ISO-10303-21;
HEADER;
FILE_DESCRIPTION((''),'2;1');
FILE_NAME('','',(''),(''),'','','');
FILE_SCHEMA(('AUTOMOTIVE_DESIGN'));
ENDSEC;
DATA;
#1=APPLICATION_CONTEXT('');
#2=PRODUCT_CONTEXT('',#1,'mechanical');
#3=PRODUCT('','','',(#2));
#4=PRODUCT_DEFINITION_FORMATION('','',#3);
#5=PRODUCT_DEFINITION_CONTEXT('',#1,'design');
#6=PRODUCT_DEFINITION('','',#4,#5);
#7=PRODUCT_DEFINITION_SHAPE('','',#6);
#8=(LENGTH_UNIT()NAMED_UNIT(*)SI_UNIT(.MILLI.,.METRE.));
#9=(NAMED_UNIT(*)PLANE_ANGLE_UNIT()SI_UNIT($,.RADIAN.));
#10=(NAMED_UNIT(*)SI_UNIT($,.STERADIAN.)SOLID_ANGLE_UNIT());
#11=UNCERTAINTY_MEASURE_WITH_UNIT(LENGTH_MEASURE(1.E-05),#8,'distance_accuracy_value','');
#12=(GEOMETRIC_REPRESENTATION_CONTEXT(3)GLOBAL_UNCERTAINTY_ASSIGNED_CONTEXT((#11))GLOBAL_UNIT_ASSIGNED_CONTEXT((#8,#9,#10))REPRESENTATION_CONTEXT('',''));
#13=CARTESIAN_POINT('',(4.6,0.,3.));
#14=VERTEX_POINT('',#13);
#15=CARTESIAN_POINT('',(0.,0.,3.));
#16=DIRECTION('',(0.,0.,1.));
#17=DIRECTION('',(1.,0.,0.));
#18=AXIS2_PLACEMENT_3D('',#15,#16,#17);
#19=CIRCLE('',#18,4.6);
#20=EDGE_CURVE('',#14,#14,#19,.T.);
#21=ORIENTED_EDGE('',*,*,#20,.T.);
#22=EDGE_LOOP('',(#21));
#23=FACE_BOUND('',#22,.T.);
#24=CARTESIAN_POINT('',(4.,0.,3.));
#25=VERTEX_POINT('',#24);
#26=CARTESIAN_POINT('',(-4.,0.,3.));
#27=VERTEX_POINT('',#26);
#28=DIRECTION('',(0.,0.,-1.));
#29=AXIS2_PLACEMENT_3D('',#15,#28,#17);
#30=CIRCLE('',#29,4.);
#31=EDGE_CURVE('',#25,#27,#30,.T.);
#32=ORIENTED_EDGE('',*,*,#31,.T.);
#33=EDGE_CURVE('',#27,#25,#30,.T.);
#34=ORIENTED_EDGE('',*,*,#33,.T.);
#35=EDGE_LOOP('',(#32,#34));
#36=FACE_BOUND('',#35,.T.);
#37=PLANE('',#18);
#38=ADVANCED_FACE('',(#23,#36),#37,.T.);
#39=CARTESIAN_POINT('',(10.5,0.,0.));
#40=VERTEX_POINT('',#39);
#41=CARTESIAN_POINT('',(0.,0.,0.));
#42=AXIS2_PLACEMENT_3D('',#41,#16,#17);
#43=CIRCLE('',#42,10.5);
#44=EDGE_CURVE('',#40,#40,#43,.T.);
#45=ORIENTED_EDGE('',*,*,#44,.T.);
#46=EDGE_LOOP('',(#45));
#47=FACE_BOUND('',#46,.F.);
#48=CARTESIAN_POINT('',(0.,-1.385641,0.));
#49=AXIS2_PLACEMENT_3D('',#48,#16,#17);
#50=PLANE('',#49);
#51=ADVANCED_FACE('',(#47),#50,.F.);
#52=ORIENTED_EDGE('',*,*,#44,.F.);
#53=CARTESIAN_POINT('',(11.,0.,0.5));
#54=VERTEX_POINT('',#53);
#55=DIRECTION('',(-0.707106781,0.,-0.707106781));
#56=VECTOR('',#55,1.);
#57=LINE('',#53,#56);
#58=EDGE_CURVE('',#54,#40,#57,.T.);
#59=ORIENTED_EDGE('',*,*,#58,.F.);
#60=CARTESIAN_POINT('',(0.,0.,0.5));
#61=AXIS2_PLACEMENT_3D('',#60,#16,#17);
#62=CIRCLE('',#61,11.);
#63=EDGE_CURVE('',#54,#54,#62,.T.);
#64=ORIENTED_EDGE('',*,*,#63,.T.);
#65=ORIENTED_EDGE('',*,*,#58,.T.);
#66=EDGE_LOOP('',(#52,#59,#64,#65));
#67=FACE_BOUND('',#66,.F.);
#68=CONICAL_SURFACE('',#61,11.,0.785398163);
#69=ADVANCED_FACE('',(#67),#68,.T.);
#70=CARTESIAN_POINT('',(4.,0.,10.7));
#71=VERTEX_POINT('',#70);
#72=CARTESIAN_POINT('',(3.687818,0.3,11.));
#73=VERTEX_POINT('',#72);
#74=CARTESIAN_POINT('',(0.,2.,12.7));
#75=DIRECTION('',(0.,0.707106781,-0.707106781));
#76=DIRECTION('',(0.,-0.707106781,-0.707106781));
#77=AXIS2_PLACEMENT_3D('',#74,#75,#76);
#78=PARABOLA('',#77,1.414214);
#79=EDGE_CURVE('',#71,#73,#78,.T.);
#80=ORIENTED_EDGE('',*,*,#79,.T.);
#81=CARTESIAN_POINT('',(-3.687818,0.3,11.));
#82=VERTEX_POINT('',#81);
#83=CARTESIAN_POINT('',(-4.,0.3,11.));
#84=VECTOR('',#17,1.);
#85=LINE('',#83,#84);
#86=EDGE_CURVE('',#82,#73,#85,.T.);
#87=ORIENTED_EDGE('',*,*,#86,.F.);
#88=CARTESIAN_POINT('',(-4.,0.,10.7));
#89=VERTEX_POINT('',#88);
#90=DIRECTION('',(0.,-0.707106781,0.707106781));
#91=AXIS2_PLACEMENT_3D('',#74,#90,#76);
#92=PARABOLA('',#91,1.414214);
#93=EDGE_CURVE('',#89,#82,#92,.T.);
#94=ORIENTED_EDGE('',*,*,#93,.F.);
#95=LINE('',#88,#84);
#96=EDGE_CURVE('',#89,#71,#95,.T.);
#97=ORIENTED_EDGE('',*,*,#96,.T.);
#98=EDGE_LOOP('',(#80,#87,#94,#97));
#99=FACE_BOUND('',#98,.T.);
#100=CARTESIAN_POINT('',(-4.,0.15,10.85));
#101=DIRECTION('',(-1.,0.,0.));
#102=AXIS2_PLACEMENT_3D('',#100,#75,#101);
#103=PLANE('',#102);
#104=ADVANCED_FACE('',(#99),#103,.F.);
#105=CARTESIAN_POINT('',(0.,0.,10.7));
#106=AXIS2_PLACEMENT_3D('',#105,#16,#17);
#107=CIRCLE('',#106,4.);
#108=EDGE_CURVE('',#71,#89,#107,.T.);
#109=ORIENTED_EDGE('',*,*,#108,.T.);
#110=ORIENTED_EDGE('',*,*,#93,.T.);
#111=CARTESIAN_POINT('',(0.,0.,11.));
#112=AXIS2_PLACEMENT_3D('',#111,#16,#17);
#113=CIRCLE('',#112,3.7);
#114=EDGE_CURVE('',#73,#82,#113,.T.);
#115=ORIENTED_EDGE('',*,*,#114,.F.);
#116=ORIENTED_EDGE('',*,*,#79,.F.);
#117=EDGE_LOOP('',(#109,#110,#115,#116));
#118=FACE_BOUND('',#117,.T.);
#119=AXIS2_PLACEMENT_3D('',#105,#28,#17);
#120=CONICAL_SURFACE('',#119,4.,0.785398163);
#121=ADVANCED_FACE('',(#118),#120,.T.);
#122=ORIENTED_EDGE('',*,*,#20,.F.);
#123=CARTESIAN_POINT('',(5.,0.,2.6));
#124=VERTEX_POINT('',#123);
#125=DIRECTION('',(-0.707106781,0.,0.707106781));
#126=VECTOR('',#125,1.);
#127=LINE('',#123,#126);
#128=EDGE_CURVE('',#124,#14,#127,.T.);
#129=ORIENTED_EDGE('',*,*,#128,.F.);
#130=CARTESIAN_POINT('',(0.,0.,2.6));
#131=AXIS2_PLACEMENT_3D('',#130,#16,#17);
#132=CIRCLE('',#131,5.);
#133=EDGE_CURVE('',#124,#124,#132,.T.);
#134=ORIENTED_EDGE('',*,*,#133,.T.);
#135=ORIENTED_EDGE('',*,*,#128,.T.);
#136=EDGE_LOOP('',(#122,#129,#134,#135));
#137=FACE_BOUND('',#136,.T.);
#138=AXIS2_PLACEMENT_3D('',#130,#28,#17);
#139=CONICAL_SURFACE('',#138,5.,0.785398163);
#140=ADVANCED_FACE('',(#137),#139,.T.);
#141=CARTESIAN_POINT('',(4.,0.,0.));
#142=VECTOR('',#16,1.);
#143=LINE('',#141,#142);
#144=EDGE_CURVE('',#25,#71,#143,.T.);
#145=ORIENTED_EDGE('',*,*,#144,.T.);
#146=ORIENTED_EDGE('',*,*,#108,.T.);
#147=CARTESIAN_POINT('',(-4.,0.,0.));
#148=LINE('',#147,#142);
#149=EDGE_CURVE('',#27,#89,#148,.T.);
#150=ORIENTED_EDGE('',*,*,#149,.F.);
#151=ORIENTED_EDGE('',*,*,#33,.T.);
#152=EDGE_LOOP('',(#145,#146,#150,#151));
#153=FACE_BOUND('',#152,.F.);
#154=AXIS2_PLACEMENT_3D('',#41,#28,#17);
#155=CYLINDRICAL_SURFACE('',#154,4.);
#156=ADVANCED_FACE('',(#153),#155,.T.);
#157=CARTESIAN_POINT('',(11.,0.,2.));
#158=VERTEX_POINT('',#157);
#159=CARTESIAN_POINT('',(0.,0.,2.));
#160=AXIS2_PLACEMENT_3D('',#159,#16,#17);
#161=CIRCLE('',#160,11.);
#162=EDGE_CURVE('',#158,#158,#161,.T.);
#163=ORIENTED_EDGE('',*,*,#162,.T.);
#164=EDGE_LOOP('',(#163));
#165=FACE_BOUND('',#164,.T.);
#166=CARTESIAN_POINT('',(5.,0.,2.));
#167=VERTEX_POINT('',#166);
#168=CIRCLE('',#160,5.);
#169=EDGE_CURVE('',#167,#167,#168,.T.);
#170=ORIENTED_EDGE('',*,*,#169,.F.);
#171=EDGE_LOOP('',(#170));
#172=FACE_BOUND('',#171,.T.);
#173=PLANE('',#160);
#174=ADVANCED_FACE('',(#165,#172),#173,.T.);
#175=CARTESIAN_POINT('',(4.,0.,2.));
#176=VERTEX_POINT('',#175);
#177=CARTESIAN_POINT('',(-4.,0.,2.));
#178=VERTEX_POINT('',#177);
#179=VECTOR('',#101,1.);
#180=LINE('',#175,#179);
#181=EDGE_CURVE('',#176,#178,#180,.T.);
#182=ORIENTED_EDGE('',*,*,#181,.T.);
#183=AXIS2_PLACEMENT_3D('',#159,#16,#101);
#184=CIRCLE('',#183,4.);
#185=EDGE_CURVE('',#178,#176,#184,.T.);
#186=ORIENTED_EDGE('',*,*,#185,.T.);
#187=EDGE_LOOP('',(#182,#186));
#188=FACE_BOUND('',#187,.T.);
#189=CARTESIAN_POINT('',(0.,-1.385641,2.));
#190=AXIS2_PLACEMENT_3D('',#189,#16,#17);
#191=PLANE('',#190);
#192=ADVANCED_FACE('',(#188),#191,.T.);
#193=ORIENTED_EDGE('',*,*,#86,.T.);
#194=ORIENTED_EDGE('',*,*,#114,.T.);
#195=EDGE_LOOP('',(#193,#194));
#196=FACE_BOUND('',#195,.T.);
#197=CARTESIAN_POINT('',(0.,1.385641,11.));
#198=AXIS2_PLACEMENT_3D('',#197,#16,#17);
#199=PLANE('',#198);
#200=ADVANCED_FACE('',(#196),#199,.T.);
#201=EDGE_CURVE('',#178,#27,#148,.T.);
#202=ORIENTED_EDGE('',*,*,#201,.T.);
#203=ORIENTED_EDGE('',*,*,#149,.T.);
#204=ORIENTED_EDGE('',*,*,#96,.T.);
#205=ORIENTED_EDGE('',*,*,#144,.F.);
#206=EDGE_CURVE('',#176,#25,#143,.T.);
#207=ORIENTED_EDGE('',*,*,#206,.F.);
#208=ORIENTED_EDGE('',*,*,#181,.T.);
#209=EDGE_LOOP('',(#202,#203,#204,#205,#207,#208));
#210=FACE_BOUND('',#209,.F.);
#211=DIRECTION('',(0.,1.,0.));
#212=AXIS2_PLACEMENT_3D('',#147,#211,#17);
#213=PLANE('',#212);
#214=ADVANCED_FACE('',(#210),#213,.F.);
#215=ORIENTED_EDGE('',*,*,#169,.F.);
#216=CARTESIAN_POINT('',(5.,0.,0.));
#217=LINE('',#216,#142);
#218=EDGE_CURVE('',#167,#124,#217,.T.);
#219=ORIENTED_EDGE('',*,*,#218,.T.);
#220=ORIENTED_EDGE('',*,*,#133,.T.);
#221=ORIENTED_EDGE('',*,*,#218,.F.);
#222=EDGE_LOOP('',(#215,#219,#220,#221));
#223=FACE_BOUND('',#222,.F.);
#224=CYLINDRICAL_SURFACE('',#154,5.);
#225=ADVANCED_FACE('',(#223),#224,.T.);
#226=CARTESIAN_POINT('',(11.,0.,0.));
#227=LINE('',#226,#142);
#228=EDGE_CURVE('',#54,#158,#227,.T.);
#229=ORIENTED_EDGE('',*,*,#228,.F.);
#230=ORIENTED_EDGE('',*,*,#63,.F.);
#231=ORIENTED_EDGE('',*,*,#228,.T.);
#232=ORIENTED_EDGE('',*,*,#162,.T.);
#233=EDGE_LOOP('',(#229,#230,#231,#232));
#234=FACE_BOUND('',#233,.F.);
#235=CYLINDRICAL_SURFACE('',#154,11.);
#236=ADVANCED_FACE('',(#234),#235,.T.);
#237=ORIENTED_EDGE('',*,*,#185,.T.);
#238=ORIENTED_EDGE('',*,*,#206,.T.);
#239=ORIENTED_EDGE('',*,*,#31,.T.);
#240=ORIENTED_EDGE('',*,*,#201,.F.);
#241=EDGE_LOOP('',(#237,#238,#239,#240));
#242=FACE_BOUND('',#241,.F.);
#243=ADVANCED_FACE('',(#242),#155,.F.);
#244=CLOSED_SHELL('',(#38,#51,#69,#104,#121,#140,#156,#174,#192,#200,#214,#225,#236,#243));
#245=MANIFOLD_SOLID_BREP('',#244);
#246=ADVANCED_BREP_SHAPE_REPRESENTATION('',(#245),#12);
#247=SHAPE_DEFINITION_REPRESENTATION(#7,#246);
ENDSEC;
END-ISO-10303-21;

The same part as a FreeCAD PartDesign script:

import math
import FreeCAD as App
import Part
import Sketcher
from FreeCAD import Vector


def edges_at(feature, points):
    """Names of the edges that pass closest to the given points."""
    edges = feature.Shape.Edges
    near = lambda p: min(range(len(edges)), key=lambda i: edges[i].distToShape(Part.Vertex(*p))[0])
    return sorted({f"Edge{near(p) + 1}" for p in points})

doc = App.newDocument("Part")
body = doc.addObject("PartDesign::Body", "Body")

# Sketch on XY plane
sketch1 = body.newObject("Sketcher::SketchObject", "Sketch")
sketch1.AttachmentSupport = (doc.getObject("XY_Plane"), [""])
sketch1.MapMode = "FlatFace"
sketch1.addGeometry([
    Part.LineSegment(Vector(-4, 0, 0), Vector(4, 0, 0)),
    Part.ArcOfCircle(Part.Circle(Vector(0, 0, 0), Vector(0, 0, 1), 4), math.radians(0), math.radians(180)),
], False)
sketch1.addConstraint([
    Sketcher.Constraint("Coincident", 0, 1, 1, 2),
    Sketcher.Constraint("Coincident", 1, 1, 0, 2),
    Sketcher.Constraint("Horizontal", 0),
    Sketcher.Constraint("Coincident", 1, 3, -1, 1),
    Sketcher.Constraint("PointOnObject", 0, 1, -1),
    Sketcher.Constraint("Radius", 1, 4.0),
])
pad1 = body.newObject("PartDesign::Pad", "Pad")
pad1.Profile = sketch1
pad1.Length = 11

# Sketch on XY plane
sketch2 = body.newObject("Sketcher::SketchObject", "Sketch001")
sketch2.AttachmentSupport = (doc.getObject("XY_Plane"), [""])
sketch2.MapMode = "FlatFace"
sketch2.addGeometry([
    Part.Circle(Vector(0, 0, 0), Vector(0, 0, 1), 5),
    Part.Circle(Vector(0, 0, 0), Vector(0, 0, 1), 4),
], False)
sketch2.addConstraint([
    Sketcher.Constraint("Coincident", 0, 3, -1, 1),
    Sketcher.Constraint("Coincident", 1, 3, -1, 1),
    Sketcher.Constraint("Diameter", 0, 10.0),
    Sketcher.Constraint("Diameter", 1, 8.0),
])
pad2 = body.newObject("PartDesign::Pad", "Pad001")
pad2.Profile = sketch2
pad2.Length = 3

# Sketch on XY plane
sketch3 = body.newObject("Sketcher::SketchObject", "Sketch002")
sketch3.AttachmentSupport = (doc.getObject("XY_Plane"), [""])
sketch3.MapMode = "FlatFace"
sketch3.addGeometry([
    Part.Circle(Vector(0, 0, 0), Vector(0, 0, 1), 11),
    Part.Circle(Vector(0, 0, 0), Vector(0, 0, 1), 5),
], False)
sketch3.addConstraint([
    Sketcher.Constraint("Coincident", 0, 3, -1, 1),
    Sketcher.Constraint("Coincident", 1, 3, -1, 1),
    Sketcher.Constraint("Diameter", 0, 22.0),
    Sketcher.Constraint("Diameter", 1, 10.0),
])
pad3 = body.newObject("PartDesign::Pad", "Pad002")
pad3.Profile = sketch3
pad3.Length = 2

# Sketch on XY plane
sketch4 = body.newObject("Sketcher::SketchObject", "Sketch003")
sketch4.AttachmentSupport = (doc.getObject("XY_Plane"), [""])
sketch4.MapMode = "FlatFace"
sketch4.addGeometry([
    Part.ArcOfCircle(Part.Circle(Vector(0, 0, 0), Vector(0, 0, 1), 4), math.radians(180), math.radians(360)),
    Part.LineSegment(Vector(4, 0, 0), Vector(-4, 0, 0)),
], False)
sketch4.addConstraint([
    Sketcher.Constraint("Coincident", 0, 1, 1, 2),
    Sketcher.Constraint("Coincident", 1, 1, 0, 2),
    Sketcher.Constraint("Horizontal", 1),
    Sketcher.Constraint("Coincident", 0, 3, -1, 1),
    Sketcher.Constraint("PointOnObject", 0, 1, -1),
    Sketcher.Constraint("Radius", 0, 4.0),
])
pad4 = body.newObject("PartDesign::Pad", "Pad003")
pad4.Profile = sketch4
pad4.Length = 2
doc.recompute()

chamfer = body.newObject("PartDesign::Chamfer", "Chamfer")
chamfer.Base = (pad4, edges_at(pad4, [(-5, 0, 3)]))
chamfer.Size = 0.4
doc.recompute()

chamfer2 = body.newObject("PartDesign::Chamfer", "Chamfer001")
chamfer2.Base = (chamfer, edges_at(chamfer, [(0, 4, 11), (0, 0, 11)]))
chamfer2.Size = 0.3
doc.recompute()

chamfer3 = body.newObject("PartDesign::Chamfer", "Chamfer002")
chamfer3.Base = (chamfer2, edges_at(chamfer2, [(-11, 0, 0)]))
chamfer3.Size = 0.5

doc.recompute()
